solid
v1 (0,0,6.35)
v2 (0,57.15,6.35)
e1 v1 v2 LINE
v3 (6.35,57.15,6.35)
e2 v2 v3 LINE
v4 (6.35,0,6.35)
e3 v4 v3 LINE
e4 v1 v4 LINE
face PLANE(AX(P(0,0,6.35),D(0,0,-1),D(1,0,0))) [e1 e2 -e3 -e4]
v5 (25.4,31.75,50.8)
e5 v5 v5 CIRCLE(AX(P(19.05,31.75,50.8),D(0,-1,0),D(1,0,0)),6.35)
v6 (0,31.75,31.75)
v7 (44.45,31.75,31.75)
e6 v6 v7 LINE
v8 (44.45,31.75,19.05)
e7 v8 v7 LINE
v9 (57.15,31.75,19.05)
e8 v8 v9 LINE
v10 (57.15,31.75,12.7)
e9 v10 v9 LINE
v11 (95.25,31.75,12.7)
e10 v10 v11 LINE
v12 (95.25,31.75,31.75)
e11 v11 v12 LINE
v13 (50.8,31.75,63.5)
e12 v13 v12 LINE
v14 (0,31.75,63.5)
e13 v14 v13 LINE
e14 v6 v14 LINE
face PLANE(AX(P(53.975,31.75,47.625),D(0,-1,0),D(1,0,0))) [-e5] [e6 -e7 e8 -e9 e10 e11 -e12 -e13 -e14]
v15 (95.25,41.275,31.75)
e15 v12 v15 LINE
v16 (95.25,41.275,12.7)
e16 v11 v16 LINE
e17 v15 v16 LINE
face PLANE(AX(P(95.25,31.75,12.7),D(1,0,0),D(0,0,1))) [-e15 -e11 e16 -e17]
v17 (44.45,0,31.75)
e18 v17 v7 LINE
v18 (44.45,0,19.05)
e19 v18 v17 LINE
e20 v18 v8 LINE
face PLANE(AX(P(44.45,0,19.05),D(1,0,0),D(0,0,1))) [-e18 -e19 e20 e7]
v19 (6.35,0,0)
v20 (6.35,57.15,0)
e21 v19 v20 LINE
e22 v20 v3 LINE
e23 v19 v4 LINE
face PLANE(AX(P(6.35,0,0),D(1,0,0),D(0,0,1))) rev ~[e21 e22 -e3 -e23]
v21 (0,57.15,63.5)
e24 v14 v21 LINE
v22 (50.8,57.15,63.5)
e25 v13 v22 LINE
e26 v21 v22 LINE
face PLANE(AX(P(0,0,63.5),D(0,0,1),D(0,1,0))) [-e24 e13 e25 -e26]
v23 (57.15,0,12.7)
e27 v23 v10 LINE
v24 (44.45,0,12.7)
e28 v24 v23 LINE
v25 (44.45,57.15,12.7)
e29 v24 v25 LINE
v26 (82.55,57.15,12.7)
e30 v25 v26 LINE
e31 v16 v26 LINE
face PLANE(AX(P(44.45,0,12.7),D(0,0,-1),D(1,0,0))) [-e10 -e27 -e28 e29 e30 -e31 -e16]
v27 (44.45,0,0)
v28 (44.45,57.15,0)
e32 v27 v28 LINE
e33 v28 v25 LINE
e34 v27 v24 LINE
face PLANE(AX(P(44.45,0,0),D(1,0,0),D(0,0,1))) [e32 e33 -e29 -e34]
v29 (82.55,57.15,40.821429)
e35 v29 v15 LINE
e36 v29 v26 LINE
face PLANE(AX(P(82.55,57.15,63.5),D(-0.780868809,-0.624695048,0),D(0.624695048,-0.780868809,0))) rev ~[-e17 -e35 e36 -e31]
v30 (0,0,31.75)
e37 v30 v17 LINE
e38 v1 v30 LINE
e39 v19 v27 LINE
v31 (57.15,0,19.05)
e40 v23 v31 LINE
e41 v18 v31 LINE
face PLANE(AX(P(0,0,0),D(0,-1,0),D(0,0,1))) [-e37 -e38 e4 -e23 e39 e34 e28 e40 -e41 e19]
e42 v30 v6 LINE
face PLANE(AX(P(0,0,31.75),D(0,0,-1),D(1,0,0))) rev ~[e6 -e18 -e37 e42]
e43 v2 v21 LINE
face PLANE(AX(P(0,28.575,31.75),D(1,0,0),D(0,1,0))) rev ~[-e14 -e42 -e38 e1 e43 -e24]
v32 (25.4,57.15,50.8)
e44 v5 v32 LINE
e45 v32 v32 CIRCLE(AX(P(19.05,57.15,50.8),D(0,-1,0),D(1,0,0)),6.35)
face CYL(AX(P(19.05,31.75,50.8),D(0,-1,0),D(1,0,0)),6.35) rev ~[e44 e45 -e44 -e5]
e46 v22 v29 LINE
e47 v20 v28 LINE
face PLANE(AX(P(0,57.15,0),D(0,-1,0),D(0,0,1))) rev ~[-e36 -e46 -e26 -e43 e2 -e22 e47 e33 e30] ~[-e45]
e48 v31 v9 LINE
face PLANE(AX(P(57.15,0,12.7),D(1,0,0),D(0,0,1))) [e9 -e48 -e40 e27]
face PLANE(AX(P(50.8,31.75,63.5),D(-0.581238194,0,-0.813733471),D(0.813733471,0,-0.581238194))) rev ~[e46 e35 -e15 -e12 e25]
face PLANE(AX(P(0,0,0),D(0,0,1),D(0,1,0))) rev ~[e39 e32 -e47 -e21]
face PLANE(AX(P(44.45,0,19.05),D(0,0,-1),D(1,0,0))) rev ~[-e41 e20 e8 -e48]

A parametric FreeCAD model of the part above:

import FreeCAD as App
import Part
import Sketcher
from FreeCAD import Vector
Q = App.Units.Quantity

doc = App.newDocument("Part")
params = doc.addObject("Spreadsheet::Sheet", "Params")
for row, (alias, value) in enumerate([
    ("sketch1_height", "2.5 in"),
    ("sketch1_width", "2.25 in"),
    ("pad1_length", "4.25 in"),
    ("sketch2_width", "0.25 in"),
    ("sketch3_width", "4.25 in"),
    ("sketch3_height", "1.25 in"),
    ("pocket2_length", "1.25 in"),
    ("sketch4_width", "2.5 in"),
    ("sketch4_height", "0.5 in"),
    ("pocket3_length", "1.25 in"),
    ("sketch5_width", "2.5 in"),
    ("sketch5_height", "0.5 in"),
    ("sketch6_width", "2 in"),
    ("sketch6_height", "0.25 in"),
    ("pocket5_length", "1.25 in"),
    ("sketch7_height", "2 in"),
    ("sketch7_width", "0.5 in"),
    ("sketch8_width", "0.5 in"),
    ("sketch8_height", "0.625 in"),
    ("sketch9_width", "1.75 in"),
    ("sketch9_height", "1.25 in"),
    ("sketch10_diameter", "0.5 in"),
], start=1):
    params.set(f"A{row}", alias)
    params.set(f"B{row}", "=" + value)
    params.setAlias(f"B{row}", alias)

body = doc.addObject("PartDesign::Body", "Body")

# Sketch on YZ plane
sketch1 = body.newObject("Sketcher::SketchObject", "Sketch")
sketch1.AttachmentSupport = (doc.getObject("YZ_Plane"), [""])
sketch1.MapMode = "FlatFace"
sketch1.addGeometry([
    Part.LineSegment(Vector(0, 64, 0), Vector(0, 0, 0)),
    Part.LineSegment(Vector(0, 0, 0), Vector(57, 0, 0)),
    Part.LineSegment(Vector(57, 0, 0), Vector(57, 64, 0)),
    Part.LineSegment(Vector(57, 64, 0), Vector(0, 64, 0)),
], False)
sketch1.addConstraint([
    Sketcher.Constraint("Coincident", 0, 2, 1, 1),
    Sketcher.Constraint("Coincident", 1, 2, 2, 1),
    Sketcher.Constraint("Coincident", 2, 2, 3, 1),
    Sketcher.Constraint("Coincident", 3, 2, 0, 1),
    Sketcher.Constraint("Vertical", 0),
    Sketcher.Constraint("Horizontal", 1),
    Sketcher.Constraint("Vertical", 2),
    Sketcher.Constraint("Horizontal", 3),
    Sketcher.Constraint("Coincident", 0, 2, -1, 1),
    Sketcher.Constraint("DistanceY", 0, 2, 0, 1, Q("2.5 in")),
    Sketcher.Constraint("DistanceX", 1, 1, 1, 2, Q("2.25 in")),
])
sketch1.setExpression("Constraints[9]", "Params.sketch1_height")
sketch1.setExpression("Constraints[10]", "Params.sketch1_width")
pad1 = body.newObject("PartDesign::Pad", "Pad")
pad1.Profile = sketch1
pad1.setExpression("Length", "Params.pad1_length")

# Sketch on XZ plane
sketch2 = body.newObject("Sketcher::SketchObject", "Sketch001")
sketch2.AttachmentSupport = (doc.getObject("XZ_Plane"), [""])
sketch2.MapMode = "FlatFace"
sketch2.addGeometry([
    Part.LineSegment(Vector(0, 6, 0), Vector(0, 0, 0)),
    Part.LineSegment(Vector(0, 0, 0), Vector(6, 0, 0)),
    Part.LineSegment(Vector(6, 0, 0), Vector(6, 6, 0)),
    Part.LineSegment(Vector(6, 6, 0), Vector(0, 6, 0)),
], False)
sketch2.addConstraint([
    Sketcher.Constraint("Coincident", 0, 2, 1, 1),
    Sketcher.Constraint("Coincident", 1, 2, 2, 1),
    Sketcher.Constraint("Coincident", 2, 2, 3, 1),
    Sketcher.Constraint("Coincident", 3, 2, 0, 1),
    Sketcher.Constraint("Vertical", 0),
    Sketcher.Constraint("Horizontal", 1),
    Sketcher.Constraint("Vertical", 2),
    Sketcher.Constraint("Horizontal", 3),
    Sketcher.Constraint("Coincident", 0, 2, -1, 1),
    Sketcher.Constraint("Equal", 3, 0),
    Sketcher.Constraint("DistanceX", 1, 1, 1, 2, Q("0.25 in")),
])
sketch2.setExpression("Constraints[10]", "Params.sketch2_width")
pocket1 = body.newObject("PartDesign::Pocket", "Pocket")
pocket1.Profile = sketch2
pocket1.Type = "ThroughAll"

# Sketch on XZ plane
sketch3 = body.newObject("Sketcher::SketchObject", "Sketch002")
sketch3.AttachmentSupport = (doc.getObject("XZ_Plane"), [""])
sketch3.MapMode = "FlatFace"
sketch3.addGeometry([
    Part.LineSegment(Vector(0, 64, 0), Vector(0, 32, 0)),
    Part.LineSegment(Vector(0, 32, 0), Vector(108, 32, 0)),
    Part.LineSegment(Vector(108, 32, 0), Vector(108, 64, 0)),
    Part.LineSegment(Vector(108, 64, 0), Vector(0, 64, 0)),
], False)
sketch3.addConstraint([
    Sketcher.Constraint("Coincident", 0, 2, 1, 1),
    Sketcher.Constraint("Coincident", 1, 2, 2, 1),
    Sketcher.Constraint("Coincident", 2, 2, 3, 1),
    Sketcher.Constraint("Coincident", 3, 2, 0, 1),
    Sketcher.Constraint("Vertical", 0),
    Sketcher.Constraint("Horizontal", 1),
    Sketcher.Constraint("Vertical", 2),
    Sketcher.Constraint("Horizontal", 3),
    Sketcher.Constraint("PointOnObject", 0, 2, -2),
    Sketcher.Constraint("DistanceX", 1, 1, 1, 2, Q("4.25 in")),
    Sketcher.Constraint("DistanceY", 0, 2, 0, 1, Q("1.25 in")),
    Sketcher.Constraint("DistanceY", -1, 1, 2, 2, Q("2.5 in")),
])
sketch3.setExpression("Constraints[9]", "Params.sketch3_width")
sketch3.setExpression("Constraints[10]", "Params.sketch3_height")
pocket2 = body.newObject("PartDesign::Pocket", "Pocket001")
pocket2.Profile = sketch3
pocket2.setExpression("Length", "Params.pocket2_length")

# Sketch on XZ plane
sketch4 = body.newObject("Sketcher::SketchObject", "Sketch003")
sketch4.AttachmentSupport = (doc.getObject("XZ_Plane"), [""])
sketch4.MapMode = "FlatFace"
sketch4.addGeometry([
    Part.LineSegment(Vector(44, 32, 0), Vector(44, 19, 0)),
    Part.LineSegment(Vector(44, 19, 0), Vector(108, 19, 0)),
    Part.LineSegment(Vector(108, 19, 0), Vector(108, 32, 0)),
    Part.LineSegment(Vector(108, 32, 0), Vector(44, 32, 0)),
], False)
sketch4.addConstraint([
    Sketcher.Constraint("Coincident", 0, 2, 1, 1),
    Sketcher.Constraint("Coincident", 1, 2, 2, 1),
    Sketcher.Constraint("Coincident", 2, 2, 3, 1),
    Sketcher.Constraint("Coincident", 3, 2, 0, 1),
    Sketcher.Constraint("Vertical", 0),
    Sketcher.Constraint("Horizontal", 1),
    Sketcher.Constraint("Vertical", 2),
    Sketcher.Constraint("Horizontal", 3),
    Sketcher.Constraint("DistanceX", 1, 1, 1, 2, Q("2.5 in")),
    Sketcher.Constraint("DistanceY", 0, 2, 0, 1, Q("0.5 in")),
    Sketcher.Constraint("DistanceX", -1, 1, 0, 2, Q("1.75 in")),
    Sketcher.Constraint("DistanceY", -1, 1, 0, 2, Q("0.75 in")),
])
sketch4.setExpression("Constraints[8]", "Params.sketch4_width")
sketch4.setExpression("Constraints[9]", "Params.sketch4_height")
pocket3 = body.newObject("PartDesign::Pocket", "Pocket002")
pocket3.Profile = sketch4
pocket3.setExpression("Length", "Params.pocket3_length")

# Sketch on XZ plane
sketch5 = body.newObject("Sketcher::SketchObject", "Sketch004")
sketch5.AttachmentSupport = (doc.getObject("XZ_Plane"), [""])
sketch5.MapMode = "FlatFace"
sketch5.addGeometry([
    Part.LineSegment(Vector(44, 13, 0), Vector(44, 0, 0)),
    Part.LineSegment(Vector(44, 0, 0), Vector(108, 0, 0)),
    Part.LineSegment(Vector(108, 0, 0), Vector(108, 13, 0)),
    Part.LineSegment(Vector(108, 13, 0), Vector(44, 13, 0)),
], False)
sketch5.addConstraint([
    Sketcher.Constraint("Coincident", 0, 2, 1, 1),
    Sketcher.Constraint("Coincident", 1, 2, 2, 1),
    Sketcher.Constraint("Coincident", 2, 2, 3, 1),
    Sketcher.Constraint("Coincident", 3, 2, 0, 1),
    Sketcher.Constraint("Vertical", 0),
    Sketcher.Constraint("Horizontal", 1),
    Sketcher.Constraint("Vertical", 2),
    Sketcher.Constraint("Horizontal", 3),
    Sketcher.Constraint("PointOnObject", 0, 2, -1),
    Sketcher.Constraint("DistanceX", 1, 1, 1, 2, Q("2.5 in")),
    Sketcher.Constraint("DistanceY", 0, 2, 0, 1, Q("0.5 in")),
    Sketcher.Constraint("DistanceX", -1, 1, 0, 2, Q("1.75 in")),
])
sketch5.setExpression("Constraints[9]", "Params.sketch5_width")
sketch5.setExpression("Constraints[10]", "Params.sketch5_height")
pocket4 = body.newObject("PartDesign::Pocket", "Pocket003")
pocket4.Profile = sketch5
pocket4.Type = "ThroughAll"

# Sketch on XZ plane
sketch6 = body.newObject("Sketcher::SketchObject", "Sketch005")
sketch6.AttachmentSupport = (doc.getObject("XZ_Plane"), [""])
sketch6.MapMode = "FlatFace"
sketch6.addGeometry([
    Part.LineSegment(Vector(57, 19, 0), Vector(57, 13, 0)),
    Part.LineSegment(Vector(57, 13, 0), Vector(108, 13, 0)),
    Part.LineSegment(Vector(108, 13, 0), Vector(108, 19, 0)),
    Part.LineSegment(Vector(108, 19, 0), Vector(57, 19, 0)),
], False)
sketch6.addConstraint([
    Sketcher.Constraint("Coincident", 0, 2, 1, 1),
    Sketcher.Constraint("Coincident", 1, 2, 2, 1),
    Sketcher.Constraint("Coincident", 2, 2, 3, 1),
    Sketcher.Constraint("Coincident", 3, 2, 0, 1),
    Sketcher.Constraint("Vertical", 0),
    Sketcher.Constraint("Horizontal", 1),
    Sketcher.Constraint("Vertical", 2),
    Sketcher.Constraint("Horizontal", 3),
    Sketcher.Constraint("DistanceX", 1, 1, 1, 2, Q("2 in")),
    Sketcher.Constraint("DistanceY", 0, 2, 0, 1, Q("0.25 in")),
    Sketcher.Constraint("DistanceY", -1, 1, 0, 2, Q("0.5 in")),
    Sketcher.Constraint("DistanceX", -1, 1, 0, 2, Q("2.25 in")),
])
sketch6.setExpression("Constraints[8]", "Params.sketch6_width")
sketch6.setExpression("Constraints[9]", "Params.sketch6_height")
pocket5 = body.newObject("PartDesign::Pocket", "Pocket004")
pocket5.Profile = sketch6
pocket5.setExpression("Length", "Params.pocket5_length")

# Sketch on XZ plane
sketch7 = body.newObject("Sketcher::SketchObject", "Sketch006")
sketch7.AttachmentSupport = (doc.getObject("XZ_Plane"), [""])
sketch7.MapMode = "FlatFace"
sketch7.AttachmentOffset = App.Placement(Vector(0, 0, -1.25 * 25.4), App.Rotation())
sketch7.addGeometry([
    Part.LineSegment(Vector(95, 64, 0), Vector(95, 13, 0)),
    Part.LineSegment(Vector(95, 13, 0), Vector(108, 13, 0)),
    Part.LineSegment(Vector(108, 13, 0), Vector(108, 64, 0)),
    Part.LineSegment(Vector(108, 64, 0), Vector(95, 64, 0)),
], False)
sketch7.addConstraint([
    Sketcher.Constraint("Coincident", 0, 2, 1, 1),
    Sketcher.Constraint("Coincident", 1, 2, 2, 1),
    Sketcher.Constraint("Coincident", 2, 2, 3, 1),
    Sketcher.Constraint("Coincident", 3, 2, 0, 1),
    Sketcher.Constraint("Vertical", 0),
    Sketcher.Constraint("Horizontal", 1),
    Sketcher.Constraint("Vertical", 2),
    Sketcher.Constraint("Horizontal", 3),
    Sketcher.Constraint("DistanceY", 0, 2, 0, 1, Q("2 in")),
    Sketcher.Constraint("DistanceX", 1, 1, 1, 2, Q("0.5 in")),
    Sketcher.Constraint("DistanceY", -1, 1, 0, 2, Q("0.5 in")),
    Sketcher.Constraint("DistanceX", -1, 1, 0, 2, Q("3.75 in")),
])
sketch7.setExpression("Constraints[8]", "Params.sketch7_height")
sketch7.setExpression("Constraints[9]", "Params.sketch7_width")
pocket6 = body.newObject("PartDesign::Pocket", "Pocket005")
pocket6.Profile = sketch7
pocket6.Type = "ThroughAll"

# Sketch on XY plane
sketch8 = body.newObject("Sketcher::SketchObject", "Sketch007")
sketch8.AttachmentSupport = (doc.getObject("XY_Plane"), [""])
sketch8.MapMode = "FlatFace"
sketch8.AttachmentOffset = App.Placement(Vector(0, 0, 2.5 * 25.4), App.Rotation())
sketch8.addGeometry([
    Part.LineSegment(Vector(83, 57, 0), Vector(95, 41, 0)),
    Part.LineSegment(Vector(95, 41, 0), Vector(95, 57, 0)),
    Part.LineSegment(Vector(95, 57, 0), Vector(83, 57, 0)),
], False)
sketch8.addConstraint([
    Sketcher.Constraint("Coincident", 0, 2, 1, 1),
    Sketcher.Constraint("Coincident", 1, 2, 2, 1),
    Sketcher.Constraint("Coincident", 2, 2, 0, 1),
    Sketcher.Constraint("Vertical", 1),
    Sketcher.Constraint("Horizontal", 2),
    Sketcher.Constraint("DistanceX", 2, 2, 2, 1, Q("0.5 in")),
    Sketcher.Constraint("DistanceY", 1, 1, 1, 2, Q("0.625 in")),
    Sketcher.Constraint("DistanceX", -1, 1, 0, 2, Q("3.75 in")),
    Sketcher.Constraint("DistanceY", -1, 1, 1, 2, Q("2.25 in")),
])
sketch8.setExpression("Constraints[5]", "Params.sketch8_width")
sketch8.setExpression("Constraints[6]", "Params.sketch8_height")
pocket7 = body.newObject("PartDesign::Pocket", "Pocket006")
pocket7.Profile = sketch8
pocket7.Type = "ThroughAll"

# Sketch on XZ plane
sketch9 = body.newObject("Sketcher::SketchObject", "Sketch008")
sketch9.AttachmentSupport = (doc.getObject("XZ_Plane"), [""])
sketch9.MapMode = "FlatFace"
sketch9.AttachmentOffset = App.Placement(Vector(0, 0, -1.25 * 25.4), App.Rotation())
sketch9.addGeometry([
    Part.LineSegment(Vector(95, 64, 0), Vector(51, 64, 0)),
    Part.LineSegment(Vector(51, 64, 0), Vector(95, 32, 0)),
    Part.LineSegment(Vector(95, 32, 0), Vector(95, 64, 0)),
], False)
sketch9.addConstraint([
    Sketcher.Constraint("Coincident", 0, 2, 1, 1),
    Sketcher.Constraint("Coincident", 1, 2, 2, 1),
    Sketcher.Constraint("Coincident", 2, 2, 0, 1),
    Sketcher.Constraint("Horizontal", 0),
    Sketcher.Constraint("Vertical", 2),
    Sketcher.Constraint("DistanceX", -1, 1, 0, 2, Q("2 in")),
    Sketcher.Constraint("DistanceX", 0, 2, 0, 1, Q("1.75 in")),
    Sketcher.Constraint("DistanceY", 2, 1, 2, 2, Q("1.25 in")),
    Sketcher.Constraint("DistanceY", -1, 1, 0, 2, Q("2.5 in")),
])
sketch9.setExpression("Constraints[6]", "Params.sketch9_width")
sketch9.setExpression("Constraints[7]", "Params.sketch9_height")
pocket8 = body.newObject("PartDesign::Pocket", "Pocket007")
pocket8.Profile = sketch9
pocket8.Type = "ThroughAll"

# Sketch on XZ plane
sketch10 = body.newObject("Sketcher::SketchObject", "Sketch009")
sketch10.AttachmentSupport = (doc.getObject("XZ_Plane"), [""])
sketch10.MapMode = "FlatFace"
sketch10.AttachmentOffset = App.Placement(Vector(0, 0, -1.25 * 25.4), App.Rotation())
sketch10.addGeometry(Part.Circle(Vector(19, 51, 0), Vector(0, 0, 1), 6), False)
sketch10.addConstraint([
    Sketcher.Constraint("Diameter", 0, Q("0.5 in")),
    Sketcher.Constraint("DistanceY", -1, 1, 0, 3, Q("2 in")),
    Sketcher.Constraint("DistanceX", -1, 1, 0, 3, Q("0.75 in")),
])
sketch10.setExpression("Constraints[0]", "Params.sketch10_diameter")
pocket9 = body.newObject("PartDesign::Pocket", "Pocket008")
pocket9.Profile = sketch10
pocket9.Type = "ThroughAll"

doc.recompute()
